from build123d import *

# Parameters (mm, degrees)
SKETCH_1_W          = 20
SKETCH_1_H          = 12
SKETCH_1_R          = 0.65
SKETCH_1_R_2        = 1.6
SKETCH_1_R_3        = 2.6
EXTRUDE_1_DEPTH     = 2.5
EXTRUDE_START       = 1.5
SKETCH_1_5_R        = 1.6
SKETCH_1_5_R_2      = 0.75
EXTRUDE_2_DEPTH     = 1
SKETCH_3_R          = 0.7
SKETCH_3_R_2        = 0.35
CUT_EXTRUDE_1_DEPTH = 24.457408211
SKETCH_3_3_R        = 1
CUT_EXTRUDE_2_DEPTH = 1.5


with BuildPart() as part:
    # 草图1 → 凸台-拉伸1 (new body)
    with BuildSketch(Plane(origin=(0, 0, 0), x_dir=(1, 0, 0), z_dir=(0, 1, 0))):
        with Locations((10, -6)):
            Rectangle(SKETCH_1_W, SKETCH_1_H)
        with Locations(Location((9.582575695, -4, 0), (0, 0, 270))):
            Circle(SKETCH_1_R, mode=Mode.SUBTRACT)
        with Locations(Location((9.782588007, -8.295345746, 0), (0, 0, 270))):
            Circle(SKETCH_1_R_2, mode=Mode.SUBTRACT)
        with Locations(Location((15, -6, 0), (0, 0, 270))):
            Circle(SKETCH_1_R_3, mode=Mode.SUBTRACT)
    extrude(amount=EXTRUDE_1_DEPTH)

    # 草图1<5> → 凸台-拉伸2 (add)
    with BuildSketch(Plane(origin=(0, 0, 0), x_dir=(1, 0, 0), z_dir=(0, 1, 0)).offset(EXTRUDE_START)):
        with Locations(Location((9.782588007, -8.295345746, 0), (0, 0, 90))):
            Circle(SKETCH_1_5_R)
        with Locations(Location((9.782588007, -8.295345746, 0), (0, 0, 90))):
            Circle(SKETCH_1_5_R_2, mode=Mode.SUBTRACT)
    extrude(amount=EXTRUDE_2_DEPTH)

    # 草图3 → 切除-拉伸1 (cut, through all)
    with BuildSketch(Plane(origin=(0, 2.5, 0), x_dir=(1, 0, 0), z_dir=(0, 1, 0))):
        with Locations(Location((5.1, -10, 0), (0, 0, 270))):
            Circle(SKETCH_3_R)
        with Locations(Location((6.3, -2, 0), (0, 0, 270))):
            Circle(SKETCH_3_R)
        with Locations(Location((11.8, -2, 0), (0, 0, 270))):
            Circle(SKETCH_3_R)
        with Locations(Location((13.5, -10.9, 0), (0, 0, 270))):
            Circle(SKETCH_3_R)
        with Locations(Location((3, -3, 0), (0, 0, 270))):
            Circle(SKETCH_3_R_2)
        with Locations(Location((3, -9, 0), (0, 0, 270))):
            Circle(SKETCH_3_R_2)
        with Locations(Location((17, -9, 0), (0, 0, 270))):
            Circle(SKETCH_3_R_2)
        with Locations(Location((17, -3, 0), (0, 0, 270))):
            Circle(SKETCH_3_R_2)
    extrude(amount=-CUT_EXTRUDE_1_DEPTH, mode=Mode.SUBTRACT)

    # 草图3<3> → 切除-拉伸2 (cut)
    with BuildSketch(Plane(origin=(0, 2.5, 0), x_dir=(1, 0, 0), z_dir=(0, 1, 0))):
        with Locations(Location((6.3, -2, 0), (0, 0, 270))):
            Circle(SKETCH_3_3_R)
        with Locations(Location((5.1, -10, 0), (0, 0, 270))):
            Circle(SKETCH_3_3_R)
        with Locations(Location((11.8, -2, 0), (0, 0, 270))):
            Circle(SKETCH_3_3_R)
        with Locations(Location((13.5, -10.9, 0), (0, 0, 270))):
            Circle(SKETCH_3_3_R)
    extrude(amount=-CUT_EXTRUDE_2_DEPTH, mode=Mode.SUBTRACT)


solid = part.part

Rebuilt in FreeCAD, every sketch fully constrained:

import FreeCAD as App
import Part
import Sketcher
from FreeCAD import Vector
Q = App.Units.Quantity


def add_polygon(sketch, points):
    """Adds a closed chain of lines whose ends are joined by coincident constraints."""
    first, n = sketch.GeometryCount, len(points)
    for a, b in zip(points, points[1:] + points[:1]):
        sketch.addGeometry(Part.LineSegment(App.Vector(*a, 0), App.Vector(*b, 0)), False)
    for i in range(n):
        sketch.addConstraint(Sketcher.Constraint("Coincident", first + i, 2, first + (i + 1) % n, 1))

doc = App.newDocument("Part")
params = doc.addObject("Spreadsheet::Sheet", "Params")
for row, (alias, value) in enumerate([
    ("sketch1_diameter", "3.2 mm"),
    ("sketch1_diameter2", "1.3 mm"),
    ("sketch1_diameter3", "5.2 mm"),
    ("sketch1_width", "20 mm"),
    ("sketch1_height", "12 mm"),
    ("pad1_length", "2.5 mm"),
    ("sketch2_diameter", "3.2 mm"),
    ("sketch2_diameter2", "1.5 mm"),
    ("pad2_length", "1 mm"),
    ("sketch3_diameter", "1.4 mm"),
    ("sketch3_diameter2", "0.7 mm"),
    ("sketch4_diameter", "2 mm"),
    ("pocket2_length", "1.5 mm"),
], start=1):
    params.set(f"A{row}", alias)
    params.set(f"B{row}", "=" + value)
    params.setAlias(f"B{row}", alias)

body = doc.addObject("PartDesign::Body", "Body")

sketch1 = body.newObject("Sketcher::SketchObject", "Sketch")
sketch1.AttachmentSupport = (doc.getObject("XZ_Plane"), [""])
sketch1.MapMode = "FlatFace"
add_polygon(sketch1, [(0, 0), (0, 12), (20, 12), (20, 0)])
sketch1.addGeometry(Part.Circle(Vector(9.782588, 8.295346, 0), Vector(0, 0, 1), 1.6), False)
sketch1.addGeometry(Part.Circle(Vector(9.582576, 4, 0), Vector(0, 0, 1), 0.65), False)
sketch1.addGeometry(Part.Circle(Vector(15, 6, 0), Vector(0, 0, 1), 2.6), False)
sketch1.addConstraint(Sketcher.Constraint("Vertical", 0))
sketch1.addConstraint(Sketcher.Constraint("Horizontal", 1))
sketch1.addConstraint(Sketcher.Constraint("Vertical", 2))
sketch1.addConstraint(Sketcher.Constraint("Horizontal", 3))
sketch1.addConstraint(Sketcher.Constraint("Coincident", 3, 2, -1, 1))
sketch1.addConstraint(Sketcher.Constraint("Diameter", 4, Q("3.2 mm")))
sketch1.addConstraint(Sketcher.Constraint("Diameter", 5, Q("1.3 mm")))
sketch1.addConstraint(Sketcher.Constraint("Diameter", 6, Q("5.2 mm")))
sketch1.addConstraint(Sketcher.Constraint("DistanceX", 1, 1, 1, 2, Q("20 mm")))
sketch1.addConstraint(Sketcher.Constraint("DistanceY", 0, 1, 0, 2, Q("12 mm")))
sketch1.addConstraint(Sketcher.Constraint("DistanceY", -1, 1, 5, 3, Q("4 mm")))
sketch1.addConstraint(Sketcher.Constraint("DistanceX", -1, 1, 6, 3, Q("15 mm")))
sketch1.addConstraint(Sketcher.Constraint("DistanceY", -1, 1, 6, 3, Q("6 mm")))
sketch1.addConstraint(Sketcher.Constraint("DistanceX", -1, 1, 4, 3, Q("9.782588 mm")))
sketch1.addConstraint(Sketcher.Constraint("DistanceY", -1, 1, 4, 3, Q("8.295346 mm")))
sketch1.addConstraint(Sketcher.Constraint("DistanceX", -1, 1, 5, 3, Q("9.582576 mm")))
sketch1.setExpression("Constraints[9]", "Params.sketch1_diameter")
sketch1.setExpression("Constraints[10]", "Params.sketch1_diameter2")
sketch1.setExpression("Constraints[11]", "Params.sketch1_diameter3")
sketch1.setExpression("Constraints[12]", "Params.sketch1_width")
sketch1.setExpression("Constraints[13]", "Params.sketch1_height")
pad1 = body.newObject("PartDesign::Pad", "Pad")
pad1.Profile = sketch1
pad1.setExpression("Length", "Params.pad1_length")
pad1.Reversed = True

sketch2 = body.newObject("Sketcher::SketchObject", "Sketch001")
sketch2.AttachmentSupport = (doc.getObject("XZ_Plane"), [""])
sketch2.MapMode = "FlatFace"
sketch2.AttachmentOffset = App.Placement(Vector(0, 0, -1.5), App.Rotation())
sketch2.addGeometry(Part.Circle(Vector(9.782588, 8.295346, 0), Vector(0, 0, 1), 1.6), False)
sketch2.addGeometry(Part.Circle(Vector(9.782588, 8.295346, 0), Vector(0, 0, 1), 0.75), False)
sketch2.addConstraint(Sketcher.Constraint("Coincident", 1, 3, 0, 3))
sketch2.addConstraint(Sketcher.Constraint("Diameter", 0, Q("3.2 mm")))
sketch2.addConstraint(Sketcher.Constraint("Diameter", 1, Q("1.5 mm")))
sketch2.addConstraint(Sketcher.Constraint("DistanceX", -1, 1, 0, 3, Q("9.782588 mm")))
sketch2.addConstraint(Sketcher.Constraint("DistanceY", -1, 1, 0, 3, Q("8.295346 mm")))
sketch2.setExpression("Constraints[1]", "Params.sketch2_diameter")
sketch2.setExpression("Constraints[2]", "Params.sketch2_diameter2")
pad2 = body.newObject("PartDesign::Pad", "Pad001")
pad2.Profile = sketch2
pad2.setExpression("Length", "Params.pad2_length")
pad2.Reversed = True

sketch3 = body.newObject("Sketcher::SketchObject", "Sketch002")
sketch3.AttachmentSupport = (doc.getObject("XZ_Plane"), [""])
sketch3.MapMode = "FlatFace"
sketch3.AttachmentOffset = App.Placement(Vector(0, 0, -2.5), App.Rotation())
sketch3.addGeometry(Part.Circle(Vector(5.1, 10, 0), Vector(0, 0, 1), 0.7), False)
sketch3.addGeometry(Part.Circle(Vector(6.3, 2, 0), Vector(0, 0, 1), 0.7), False)
sketch3.addGeometry(Part.Circle(Vector(11.8, 2, 0), Vector(0, 0, 1), 0.7), False)
sketch3.addGeometry(Part.Circle(Vector(13.5, 10.9, 0), Vector(0, 0, 1), 0.7), False)
sketch3.addGeometry(Part.Circle(Vector(3, 3, 0), Vector(0, 0, 1), 0.35), False)
sketch3.addGeometry(Part.Circle(Vector(3, 9, 0), Vector(0, 0, 1), 0.35), False)
sketch3.addGeometry(Part.Circle(Vector(17, 9, 0), Vector(0, 0, 1), 0.35), False)
sketch3.addGeometry(Part.Circle(Vector(17, 3, 0), Vector(0, 0, 1), 0.35), False)
sketch3.addConstraint(Sketcher.Constraint("Equal", 0, 1))
sketch3.addConstraint(Sketcher.Constraint("Equal", 1, 2))
sketch3.addConstraint(Sketcher.Constraint("Equal", 2, 3))
sketch3.addConstraint(Sketcher.Constraint("Equal", 4, 5))
sketch3.addConstraint(Sketcher.Constraint("Equal", 5, 6))
sketch3.addConstraint(Sketcher.Constraint("Equal", 6, 7))
sketch3.addConstraint(Sketcher.Constraint("Horizontal", 1, 3, 2, 3))
sketch3.addConstraint(Sketcher.Constraint("Horizontal", 5, 3, 6, 3))
sketch3.addConstraint(Sketcher.Constraint("Horizontal", 4, 3, 7, 3))
sketch3.addConstraint(Sketcher.Constraint("Vertical", 4, 3, 5, 3))
sketch3.addConstraint(Sketcher.Constraint("Vertical", 6, 3, 7, 3))
sketch3.addConstraint(Sketcher.Constraint("Diameter", 0, Q("1.4 mm")))
sketch3.addConstraint(Sketcher.Constraint("Diameter", 4, Q("0.7 mm")))
sketch3.addConstraint(Sketcher.Constraint("DistanceY", -1, 1, 0, 3, Q("10 mm")))
sketch3.addConstraint(Sketcher.Constraint("DistanceY", -1, 1, 1, 3, Q("2 mm")))
sketch3.addConstraint(Sketcher.Constraint("DistanceX", -1, 1, 4, 3, Q("3 mm")))
sketch3.addConstraint(Sketcher.Constraint("DistanceY", -1, 1, 4, 3, Q("3 mm")))
sketch3.addConstraint(Sketcher.Constraint("DistanceY", -1, 1, 5, 3, Q("9 mm")))
sketch3.addConstraint(Sketcher.Constraint("DistanceX", -1, 1, 6, 3, Q("17 mm")))
sketch3.addConstraint(Sketcher.Constraint("DistanceX", -1, 1, 0, 3, Q("5.1 mm")))
sketch3.addConstraint(Sketcher.Constraint("DistanceX", -1, 1, 1, 3, Q("6.3 mm")))
sketch3.addConstraint(Sketcher.Constraint("DistanceX", -1, 1, 2, 3, Q("11.8 mm")))
sketch3.addConstraint(Sketcher.Constraint("DistanceX", -1, 1, 3, 3, Q("13.5 mm")))
sketch3.addConstraint(Sketcher.Constraint("DistanceY", -1, 1, 3, 3, Q("10.9 mm")))
sketch3.setExpression("Constraints[11]", "Params.sketch3_diameter")
sketch3.setExpression("Constraints[12]", "Params.sketch3_diameter2")
pocket1 = body.newObject("PartDesign::Pocket", "Pocket")
pocket1.Profile = sketch3
pocket1.Type = "ThroughAll"
pocket1.Reversed = True

sketch4 = body.newObject("Sketcher::SketchObject", "Sketch003")
sketch4.AttachmentSupport = (doc.getObject("XZ_Plane"), [""])
sketch4.MapMode = "FlatFace"
sketch4.AttachmentOffset = App.Placement(Vector(0, 0, -2.5), App.Rotation())
sketch4.addGeometry(Part.Circle(Vector(6.3, 2, 0), Vector(0, 0, 1), 1), False)
sketch4.addGeometry(Part.Circle(Vector(5.1, 10, 0), Vector(0, 0, 1), 1), False)
sketch4.addGeometry(Part.Circle(Vector(11.8, 2, 0), Vector(0, 0, 1), 1), False)
sketch4.addGeometry(Part.Circle(Vector(13.5, 10.9, 0), Vector(0, 0, 1), 1), False)
sketch4.addConstraint(Sketcher.Constraint("Equal", 0, 1))
sketch4.addConstraint(Sketcher.Constraint("Equal", 1, 2))
sketch4.addConstraint(Sketcher.Constraint("Equal", 2, 3))
sketch4.addConstraint(Sketcher.Constraint("Horizontal", 0, 3, 2, 3))
sketch4.addConstraint(Sketcher.Constraint("Diameter", 0, Q("2 mm")))
sketch4.addConstraint(Sketcher.Constraint("DistanceY", -1, 1, 0, 3, Q("2 mm")))
sketch4.addConstraint(Sketcher.Constraint("DistanceY", -1, 1, 1, 3, Q("10 mm")))
sketch4.addConstraint(Sketcher.Constraint("DistanceX", -1, 1, 0, 3, Q("6.3 mm")))
sketch4.addConstraint(Sketcher.Constraint("DistanceX", -1, 1, 1, 3, Q("5.1 mm")))
sketch4.addConstraint(Sketcher.Constraint("DistanceX", -1, 1, 2, 3, Q("11.8 mm")))
sketch4.addConstraint(Sketcher.Constraint("DistanceX", -1, 1, 3, 3, Q("13.5 mm")))
sketch4.addConstraint(Sketcher.Constraint("DistanceY", -1, 1, 3, 3, Q("10.9 mm")))
sketch4.setExpression("Constraints[4]", "Params.sketch4_diameter")
pocket2 = body.newObject("PartDesign::Pocket", "Pocket001")
pocket2.Profile = sketch4
pocket2.setExpression("Length", "Params.pocket2_length")
pocket2.Reversed = True

doc.recompute()
